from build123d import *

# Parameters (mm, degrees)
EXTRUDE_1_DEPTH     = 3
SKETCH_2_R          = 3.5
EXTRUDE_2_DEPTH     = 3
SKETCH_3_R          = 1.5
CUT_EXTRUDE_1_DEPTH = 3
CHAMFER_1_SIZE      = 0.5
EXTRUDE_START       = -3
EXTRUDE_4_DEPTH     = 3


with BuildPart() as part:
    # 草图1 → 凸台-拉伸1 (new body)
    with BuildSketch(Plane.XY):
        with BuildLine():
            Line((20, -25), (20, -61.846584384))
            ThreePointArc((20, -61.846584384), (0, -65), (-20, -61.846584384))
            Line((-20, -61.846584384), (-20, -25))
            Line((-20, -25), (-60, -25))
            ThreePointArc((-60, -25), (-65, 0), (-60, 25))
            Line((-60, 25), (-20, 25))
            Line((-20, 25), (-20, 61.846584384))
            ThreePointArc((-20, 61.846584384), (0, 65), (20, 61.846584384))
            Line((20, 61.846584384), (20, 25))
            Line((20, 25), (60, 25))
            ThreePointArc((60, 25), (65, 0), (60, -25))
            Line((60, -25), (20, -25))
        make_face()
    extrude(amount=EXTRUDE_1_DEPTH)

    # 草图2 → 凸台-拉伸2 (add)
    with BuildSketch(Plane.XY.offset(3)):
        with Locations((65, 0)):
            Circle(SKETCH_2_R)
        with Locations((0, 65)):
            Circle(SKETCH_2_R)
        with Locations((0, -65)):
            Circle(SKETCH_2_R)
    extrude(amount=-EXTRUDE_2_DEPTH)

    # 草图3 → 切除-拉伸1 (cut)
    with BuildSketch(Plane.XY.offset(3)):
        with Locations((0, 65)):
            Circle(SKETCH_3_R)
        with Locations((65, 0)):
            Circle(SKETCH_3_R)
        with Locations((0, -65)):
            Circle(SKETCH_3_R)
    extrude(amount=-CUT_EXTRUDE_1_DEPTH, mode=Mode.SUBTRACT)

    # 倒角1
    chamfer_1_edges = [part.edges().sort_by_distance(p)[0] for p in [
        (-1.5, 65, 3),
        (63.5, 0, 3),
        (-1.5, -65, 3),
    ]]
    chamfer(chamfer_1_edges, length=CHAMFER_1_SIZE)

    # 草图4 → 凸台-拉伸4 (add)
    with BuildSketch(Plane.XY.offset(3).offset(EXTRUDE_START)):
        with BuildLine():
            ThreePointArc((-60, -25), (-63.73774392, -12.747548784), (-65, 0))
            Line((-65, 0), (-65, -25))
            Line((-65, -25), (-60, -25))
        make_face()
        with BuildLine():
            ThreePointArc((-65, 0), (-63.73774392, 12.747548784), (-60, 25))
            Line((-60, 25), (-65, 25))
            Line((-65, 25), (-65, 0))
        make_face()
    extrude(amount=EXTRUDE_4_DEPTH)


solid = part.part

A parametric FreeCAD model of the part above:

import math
import FreeCAD as App
import Part
import Sketcher

V = App.Vector
Q = App.Units.Quantity


def edges_at(feature, points):
    """Names of the edges that pass closest to the given points."""
    edges = feature.Shape.Edges
    near = lambda p: min(range(len(edges)), key=lambda i: edges[i].distToShape(Part.Vertex(*p))[0])
    return sorted({f"Edge{near(p) + 1}" for p in points})

doc = App.newDocument("Part")
body = doc.addObject("PartDesign::Body", "Body")

# Sketch on XY plane
sketch1 = doc.addObject("Sketcher::SketchObject", "Sketch")
body.addObject(sketch1)
sketch1.AttachmentSupport = (doc.XY_Plane, [""])
sketch1.MapMode = "FlatFace"
sketch1.addGeometry([
    Part.LineSegment(V(20, -62, 0), V(20, -25, 0)),  # 0
    Part.LineSegment(V(20, -25, 0), V(60, -25, 0)),  # 1
    Part.ArcOfCircle(Part.Circle(V(0, 0, 0), V(0, 0, 1), 65), math.radians(-23), math.radians(23)),  # 2
    Part.LineSegment(V(60, 25, 0), V(20, 25, 0)),  # 3
    Part.LineSegment(V(20, 25, 0), V(20, 62, 0)),  # 4
    Part.ArcOfCircle(Part.Circle(V(0, 0, 0), V(0, 0, 1), 65), math.radians(72), math.radians(108)),  # 5
    Part.LineSegment(V(-20, 62, 0), V(-20, 25, 0)),  # 6
    Part.LineSegment(V(-20, 25, 0), V(-60, 25, 0)),  # 7
    Part.ArcOfCircle(Part.Circle(V(0, 0, 0), V(0, 0, 1), 65), math.radians(157), math.radians(203)),  # 8
    Part.LineSegment(V(-60, -25, 0), V(-20, -25, 0)),  # 9
    Part.LineSegment(V(-20, -25, 0), V(-20, -62, 0)),  # 10
    Part.ArcOfCircle(Part.Circle(V(0, 0, 0), V(0, 0, 1), 65), math.radians(-108), math.radians(-72)),  # 11
], False)
sketch1.addConstraint([
    Sketcher.Constraint("Coincident", 0, 2, 1, 1),
    Sketcher.Constraint("Coincident", 1, 2, 2, 1),
    Sketcher.Constraint("Coincident", 2, 2, 3, 1),
    Sketcher.Constraint("Coincident", 3, 2, 4, 1),
    Sketcher.Constraint("Coincident", 4, 2, 5, 1),
    Sketcher.Constraint("Coincident", 5, 2, 6, 1),
    Sketcher.Constraint("Coincident", 6, 2, 7, 1),
    Sketcher.Constraint("Coincident", 7, 2, 8, 1),
    Sketcher.Constraint("Coincident", 8, 2, 9, 1),
    Sketcher.Constraint("Coincident", 9, 2, 10, 1),
    Sketcher.Constraint("Coincident", 10, 2, 11, 1),
    Sketcher.Constraint("Coincident", 11, 2, 0, 1),
    Sketcher.Constraint("Vertical", 0),
    Sketcher.Constraint("Horizontal", 1),
    Sketcher.Constraint("Horizontal", 3),
    Sketcher.Constraint("Vertical", 4),
    Sketcher.Constraint("Vertical", 6),
    Sketcher.Constraint("Horizontal", 7),
    Sketcher.Constraint("Horizontal", 9),
    Sketcher.Constraint("Vertical", 10),
    Sketcher.Constraint("Coincident", 2, 3, -1, 1),
    Sketcher.Constraint("Coincident", 5, 3, -1, 1),
    Sketcher.Constraint("Coincident", 8, 3, -1, 1),
    Sketcher.Constraint("Coincident", 11, 3, -1, 1),
    Sketcher.Constraint("Equal", 2, 5),
    Sketcher.Constraint("Equal", 5, 8),
    Sketcher.Constraint("Equal", 8, 11),
    Sketcher.Constraint("Symmetric", 0, 2, 6, 2, -1, 1),
    Sketcher.Constraint("Symmetric", 3, 2, 9, 2, -1, 1),
    Sketcher.Constraint("Symmetric", 3, 2, 6, 2, -2),
    Sketcher.Constraint("Radius", 2, Q("65 mm")),
    Sketcher.Constraint("DistanceX", 1, 1, 1, 2, Q("40 mm")),
    Sketcher.Constraint("DistanceX", -1, 1, 0, 2, Q("20 mm")),
])
pad1 = doc.addObject("PartDesign::Pad", "Pad")
body.addObject(pad1)
pad1.Profile = sketch1
pad1.Length = 3

# Sketch on XY plane
sketch2 = doc.addObject("Sketcher::SketchObject", "Sketch001")
body.addObject(sketch2)
sketch2.AttachmentSupport = (doc.XY_Plane, [""])
sketch2.MapMode = "FlatFace"
sketch2.AttachmentOffset = App.Placement(V(0, 0, 3), App.Rotation())
sketch2.addGeometry([
    Part.Circle(V(65, 0, 0), V(0, 0, 1), 3.5),
    Part.Circle(V(0, 65, 0), V(0, 0, 1), 3.5),
    Part.Circle(V(0, -65, 0), V(0, 0, 1), 3.5),
], False)
sketch2.addConstraint([
    Sketcher.Constraint("Equal", 0, 1),
    Sketcher.Constraint("Equal", 1, 2),
    Sketcher.Constraint("Symmetric", 1, 3, 2, 3, -1, 1),
    Sketcher.Constraint("PointOnObject", 0, 3, -1),
    Sketcher.Constraint("PointOnObject", 1, 3, -2),
    Sketcher.Constraint("Diameter", 0, Q("7 mm")),
    Sketcher.Constraint("DistanceX", -1, 1, 0, 3, Q("65 mm")),
    Sketcher.Constraint("DistanceY", -1, 1, 1, 3, Q("65 mm")),
])
pad2 = doc.addObject("PartDesign::Pad", "Pad001")
body.addObject(pad2)
pad2.Profile = sketch2
pad2.Length = 3
pad2.Reversed = True

# Sketch on XY plane
sketch3 = doc.addObject("Sketcher::SketchObject", "Sketch002")
body.addObject(sketch3)
sketch3.AttachmentSupport = (doc.XY_Plane, [""])
sketch3.MapMode = "FlatFace"
sketch3.AttachmentOffset = App.Placement(V(0, 0, 3), App.Rotation())
sketch3.addGeometry([
    Part.Circle(V(0, 65, 0), V(0, 0, 1), 1.5),
    Part.Circle(V(65, 0, 0), V(0, 0, 1), 1.5),
    Part.Circle(V(0, -65, 0), V(0, 0, 1), 1.5),
], False)
sketch3.addConstraint([
    Sketcher.Constraint("Equal", 0, 1),
    Sketcher.Constraint("Equal", 1, 2),
    Sketcher.Constraint("Symmetric", 0, 3, 2, 3, -1, 1),
    Sketcher.Constraint("PointOnObject", 0, 3, -2),
    Sketcher.Constraint("PointOnObject", 1, 3, -1),
    Sketcher.Constraint("Diameter", 0, Q("3 mm")),
    Sketcher.Constraint("DistanceY", -1, 1, 0, 3, Q("65 mm")),
    Sketcher.Constraint("DistanceX", -1, 1, 1, 3, Q("65 mm")),
])
pocket1 = doc.addObject("PartDesign::Pocket", "Pocket")
body.addObject(pocket1)
pocket1.Profile = sketch3
pocket1.Length = 3
doc.recompute()

chamfer = doc.addObject("PartDesign::Chamfer", "Chamfer")
body.addObject(chamfer)
chamfer.Base = (pocket1, edges_at(pocket1, [(-1.5, 65, 3), (63.5, 0, 3), (-1.5, -65, 3)]))
chamfer.Size = 0.5

# Sketch on XY plane
sketch4 = doc.addObject("Sketcher::SketchObject", "Sketch003")
body.addObject(sketch4)
sketch4.AttachmentSupport = (doc.XY_Plane, [""])
sketch4.MapMode = "FlatFace"
sketch4.addGeometry([
    Part.ArcOfCircle(Part.Circle(V(0, 0, 0), V(0, 0, 1), 65), math.radians(180), math.radians(203)),  # 0
    Part.LineSegment(V(-65, 0, 0), V(-65, -25, 0)),  # 1
    Part.LineSegment(V(-65, -25, 0), V(-60, -25, 0)),  # 2
    Part.ArcOfCircle(Part.Circle(V(0, 0, 0), V(0, 0, 1), 65), math.radians(157), math.radians(180)),  # 3
    Part.LineSegment(V(-60, 25, 0), V(-65, 25, 0)),  # 4
    Part.LineSegment(V(-65, 25, 0), V(-65, 0, 0)),  # 5
], False)
sketch4.addConstraint([
    Sketcher.Constraint("Tangent", 0, 1, 1, 1),
    Sketcher.Constraint("Coincident", 1, 2, 2, 1),
    Sketcher.Constraint("Coincident", 2, 2, 0, 2),
    Sketcher.Constraint("Coincident", 3, 1, 4, 1),
    Sketcher.Constraint("Coincident", 4, 2, 5, 1),
    Sketcher.Constraint("Tangent", 5, 2, 3, 2),
    Sketcher.Constraint("Vertical", 1),
    Sketcher.Constraint("Horizontal", 2),
    Sketcher.Constraint("Horizontal", 4),
    Sketcher.Constraint("Vertical", 5),
    Sketcher.Constraint("Coincident", 0, 3, -1, 1),
    Sketcher.Constraint("Coincident", 3, 3, -1, 1),
    Sketcher.Constraint("Equal", 0, 3),
    Sketcher.Constraint("Vertical", 2, 2, 3, 1),
    Sketcher.Constraint("Radius", 0, Q("65 mm")),
    Sketcher.Constraint("DistanceX", 2, 1, 2, 2, Q("5 mm")),
])
pad3 = doc.addObject("PartDesign::Pad", "Pad002")
body.addObject(pad3)
pad3.Profile = sketch4
pad3.Length = 3

doc.recompute()
